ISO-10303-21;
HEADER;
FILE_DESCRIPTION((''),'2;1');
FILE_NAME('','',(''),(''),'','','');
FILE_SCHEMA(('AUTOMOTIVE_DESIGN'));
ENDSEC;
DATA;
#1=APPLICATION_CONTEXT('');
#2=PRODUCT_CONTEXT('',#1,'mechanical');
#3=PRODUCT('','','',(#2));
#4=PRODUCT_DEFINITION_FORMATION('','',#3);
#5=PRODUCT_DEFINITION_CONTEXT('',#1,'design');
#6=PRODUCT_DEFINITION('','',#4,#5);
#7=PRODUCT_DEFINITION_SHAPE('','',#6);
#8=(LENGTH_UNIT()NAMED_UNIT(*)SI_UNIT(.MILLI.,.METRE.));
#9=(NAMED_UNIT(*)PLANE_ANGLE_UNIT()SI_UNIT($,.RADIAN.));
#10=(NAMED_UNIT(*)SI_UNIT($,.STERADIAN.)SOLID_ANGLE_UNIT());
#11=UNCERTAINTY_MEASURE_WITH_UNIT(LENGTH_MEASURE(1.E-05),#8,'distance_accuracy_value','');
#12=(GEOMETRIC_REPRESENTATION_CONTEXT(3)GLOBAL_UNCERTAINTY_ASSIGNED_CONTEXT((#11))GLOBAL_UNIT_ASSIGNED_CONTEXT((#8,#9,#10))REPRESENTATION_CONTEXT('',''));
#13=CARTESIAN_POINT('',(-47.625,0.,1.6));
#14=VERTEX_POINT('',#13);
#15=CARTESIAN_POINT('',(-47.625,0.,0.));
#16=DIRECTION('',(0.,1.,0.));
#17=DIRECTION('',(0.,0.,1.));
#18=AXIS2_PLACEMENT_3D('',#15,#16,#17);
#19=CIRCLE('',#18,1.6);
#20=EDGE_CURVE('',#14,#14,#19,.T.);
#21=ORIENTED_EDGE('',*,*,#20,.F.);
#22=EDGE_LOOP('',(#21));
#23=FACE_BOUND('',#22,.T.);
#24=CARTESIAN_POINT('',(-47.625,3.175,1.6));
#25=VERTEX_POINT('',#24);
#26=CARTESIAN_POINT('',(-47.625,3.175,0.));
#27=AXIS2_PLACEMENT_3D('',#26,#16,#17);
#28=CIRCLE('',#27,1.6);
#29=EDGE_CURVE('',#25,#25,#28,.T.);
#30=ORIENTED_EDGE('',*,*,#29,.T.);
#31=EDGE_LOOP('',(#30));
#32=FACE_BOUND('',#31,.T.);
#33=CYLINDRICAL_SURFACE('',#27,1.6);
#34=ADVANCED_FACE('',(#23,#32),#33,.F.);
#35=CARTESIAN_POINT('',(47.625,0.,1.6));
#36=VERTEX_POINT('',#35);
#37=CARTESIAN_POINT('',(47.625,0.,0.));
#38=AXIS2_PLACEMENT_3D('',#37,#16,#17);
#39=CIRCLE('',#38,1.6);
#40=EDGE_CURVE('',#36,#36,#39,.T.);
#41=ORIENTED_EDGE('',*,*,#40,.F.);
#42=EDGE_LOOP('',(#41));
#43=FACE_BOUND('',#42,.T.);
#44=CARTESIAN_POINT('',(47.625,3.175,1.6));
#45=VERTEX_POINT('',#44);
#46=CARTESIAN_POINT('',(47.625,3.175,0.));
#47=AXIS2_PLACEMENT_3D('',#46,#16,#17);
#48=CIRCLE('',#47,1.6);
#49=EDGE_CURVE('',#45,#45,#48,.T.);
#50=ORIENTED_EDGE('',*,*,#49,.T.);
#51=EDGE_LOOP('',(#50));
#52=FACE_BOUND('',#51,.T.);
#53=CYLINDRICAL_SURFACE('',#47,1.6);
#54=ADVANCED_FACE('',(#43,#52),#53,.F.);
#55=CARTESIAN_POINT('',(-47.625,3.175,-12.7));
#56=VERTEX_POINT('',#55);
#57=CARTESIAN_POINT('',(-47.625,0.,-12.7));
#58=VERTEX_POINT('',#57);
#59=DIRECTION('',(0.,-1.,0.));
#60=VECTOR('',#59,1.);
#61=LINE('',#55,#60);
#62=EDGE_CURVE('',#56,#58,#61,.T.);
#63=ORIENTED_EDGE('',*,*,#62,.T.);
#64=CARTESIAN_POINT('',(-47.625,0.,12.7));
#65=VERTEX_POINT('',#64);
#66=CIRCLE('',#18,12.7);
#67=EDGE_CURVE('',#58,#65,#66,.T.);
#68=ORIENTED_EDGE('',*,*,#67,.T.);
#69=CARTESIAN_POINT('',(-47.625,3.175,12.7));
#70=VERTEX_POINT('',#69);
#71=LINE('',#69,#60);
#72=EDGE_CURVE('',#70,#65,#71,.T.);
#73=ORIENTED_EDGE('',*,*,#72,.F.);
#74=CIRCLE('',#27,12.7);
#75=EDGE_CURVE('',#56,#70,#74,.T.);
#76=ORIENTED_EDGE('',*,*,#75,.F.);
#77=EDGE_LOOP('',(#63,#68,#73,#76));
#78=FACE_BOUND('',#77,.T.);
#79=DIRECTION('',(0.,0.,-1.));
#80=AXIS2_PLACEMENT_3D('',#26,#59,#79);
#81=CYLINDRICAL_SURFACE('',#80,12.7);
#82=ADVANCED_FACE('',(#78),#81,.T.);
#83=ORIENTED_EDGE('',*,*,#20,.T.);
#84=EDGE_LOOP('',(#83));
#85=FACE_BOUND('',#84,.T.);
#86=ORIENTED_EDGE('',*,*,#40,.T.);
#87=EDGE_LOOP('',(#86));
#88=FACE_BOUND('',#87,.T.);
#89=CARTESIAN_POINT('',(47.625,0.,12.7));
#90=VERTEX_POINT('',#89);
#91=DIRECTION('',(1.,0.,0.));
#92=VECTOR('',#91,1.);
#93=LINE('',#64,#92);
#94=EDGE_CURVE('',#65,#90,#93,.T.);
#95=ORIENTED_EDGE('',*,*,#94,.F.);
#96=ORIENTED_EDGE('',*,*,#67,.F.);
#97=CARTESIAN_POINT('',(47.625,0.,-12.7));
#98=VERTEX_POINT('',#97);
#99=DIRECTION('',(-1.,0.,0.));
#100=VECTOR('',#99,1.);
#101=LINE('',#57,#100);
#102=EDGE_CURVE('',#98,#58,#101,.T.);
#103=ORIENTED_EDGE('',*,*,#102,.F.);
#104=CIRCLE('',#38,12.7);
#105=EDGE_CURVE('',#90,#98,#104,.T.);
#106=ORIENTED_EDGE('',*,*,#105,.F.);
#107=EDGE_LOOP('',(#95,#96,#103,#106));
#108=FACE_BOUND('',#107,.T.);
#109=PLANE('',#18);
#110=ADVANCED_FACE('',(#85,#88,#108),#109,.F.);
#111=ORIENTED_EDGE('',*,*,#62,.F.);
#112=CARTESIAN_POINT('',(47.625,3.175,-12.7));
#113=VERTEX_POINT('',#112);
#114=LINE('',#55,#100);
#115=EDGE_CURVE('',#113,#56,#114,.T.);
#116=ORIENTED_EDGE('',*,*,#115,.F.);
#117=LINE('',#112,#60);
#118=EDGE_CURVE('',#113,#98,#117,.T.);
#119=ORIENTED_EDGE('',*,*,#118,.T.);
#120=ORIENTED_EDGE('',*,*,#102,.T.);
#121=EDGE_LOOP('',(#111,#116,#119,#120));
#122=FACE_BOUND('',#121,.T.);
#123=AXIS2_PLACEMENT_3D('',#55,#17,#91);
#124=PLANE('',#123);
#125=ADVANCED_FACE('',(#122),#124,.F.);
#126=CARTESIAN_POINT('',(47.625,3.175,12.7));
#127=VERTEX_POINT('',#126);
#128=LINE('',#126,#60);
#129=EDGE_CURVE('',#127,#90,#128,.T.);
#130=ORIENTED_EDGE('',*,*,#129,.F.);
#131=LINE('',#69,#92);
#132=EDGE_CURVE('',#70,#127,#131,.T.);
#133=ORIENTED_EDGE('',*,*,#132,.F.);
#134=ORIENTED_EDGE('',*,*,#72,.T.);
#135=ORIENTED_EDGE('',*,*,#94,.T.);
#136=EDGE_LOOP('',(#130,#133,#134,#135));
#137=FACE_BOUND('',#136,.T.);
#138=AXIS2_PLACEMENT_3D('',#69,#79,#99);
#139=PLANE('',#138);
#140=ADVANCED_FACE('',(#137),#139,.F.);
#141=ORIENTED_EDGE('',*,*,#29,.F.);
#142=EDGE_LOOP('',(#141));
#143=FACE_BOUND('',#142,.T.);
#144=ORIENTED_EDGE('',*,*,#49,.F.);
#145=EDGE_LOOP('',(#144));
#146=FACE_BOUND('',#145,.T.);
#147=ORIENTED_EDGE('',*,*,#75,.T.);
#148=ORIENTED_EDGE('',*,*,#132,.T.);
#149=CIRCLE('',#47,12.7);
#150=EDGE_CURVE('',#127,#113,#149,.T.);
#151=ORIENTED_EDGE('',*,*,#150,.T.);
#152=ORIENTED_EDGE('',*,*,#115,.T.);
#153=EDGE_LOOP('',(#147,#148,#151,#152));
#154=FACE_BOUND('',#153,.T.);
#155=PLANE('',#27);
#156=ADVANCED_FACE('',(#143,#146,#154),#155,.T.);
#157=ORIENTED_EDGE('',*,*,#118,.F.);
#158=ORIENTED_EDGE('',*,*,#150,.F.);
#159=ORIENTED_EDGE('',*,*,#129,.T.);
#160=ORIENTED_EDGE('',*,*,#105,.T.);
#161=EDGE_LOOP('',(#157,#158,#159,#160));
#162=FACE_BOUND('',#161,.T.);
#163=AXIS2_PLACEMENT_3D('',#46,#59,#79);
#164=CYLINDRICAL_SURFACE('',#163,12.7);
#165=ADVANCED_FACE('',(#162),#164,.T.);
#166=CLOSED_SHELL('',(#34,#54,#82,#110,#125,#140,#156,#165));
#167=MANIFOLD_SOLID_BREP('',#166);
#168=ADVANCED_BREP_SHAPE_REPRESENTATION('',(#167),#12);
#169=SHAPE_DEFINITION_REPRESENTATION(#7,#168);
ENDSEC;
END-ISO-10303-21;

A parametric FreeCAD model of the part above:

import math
import FreeCAD as App
import Part
import Sketcher
Q = App.Units.Quantity

doc = App.newDocument("Part")
body = doc.addObject("PartDesign::Body", "Body")

# Sketch on XZ plane
sketch1 = body.newObject("Sketcher::SketchObject", "Sketch")
sketch1.AttachmentSupport = (doc.getObject("XZ_Plane"), [""])
sketch1.MapMode = "FlatFace"
sketch1.addGeometry(Part.LineSegment(App.Vector(48, -13, 0), App.Vector(-48, -13, 0)), False)
sketch1.addGeometry(Part.ArcOfCircle(Part.Circle(App.Vector(-48, 0, 0), App.Vector(0, 0, 1), 13), math.radians(90), math.radians(270)), False)
sketch1.addGeometry(Part.LineSegment(App.Vector(-48, 13, 0), App.Vector(48, 13, 0)), False)
sketch1.addGeometry(Part.ArcOfCircle(Part.Circle(App.Vector(48, 0, 0), App.Vector(0, 0, 1), 13), math.radians(-90), math.radians(90)), False)
sketch1.addConstraint(Sketcher.Constraint("Tangent", 0, 2, 1, 2))
sketch1.addConstraint(Sketcher.Constraint("Tangent", 1, 1, 2, 1))
sketch1.addConstraint(Sketcher.Constraint("Tangent", 2, 2, 3, 2))
sketch1.addConstraint(Sketcher.Constraint("Tangent", 3, 1, 0, 1))
sketch1.addConstraint(Sketcher.Constraint("Horizontal", 0))
sketch1.addConstraint(Sketcher.Constraint("Horizontal", 2))
sketch1.addConstraint(Sketcher.Constraint("Symmetric", 1, 3, 3, 3, -1, 1))
sketch1.addConstraint(Sketcher.Constraint("Radius", 1, Q("0.5 in")))
sketch1.addConstraint(Sketcher.Constraint("DistanceX", 0, 2, 0, 1, Q("3.75 in")))
pad1 = body.newObject("PartDesign::Pad", "Pad")
pad1.Profile = sketch1
pad1.Length = Q("0.125 in")
pad1.Reversed = True

# Sketch on XZ plane
sketch2 = body.newObject("Sketcher::SketchObject", "Sketch001")
sketch2.AttachmentSupport = (doc.getObject("XZ_Plane"), [""])
sketch2.MapMode = "FlatFace"
sketch2.AttachmentOffset = App.Placement(App.Vector(0, 0, -0.125 * 25.4), App.Rotation())
sketch2.addGeometry(Part.Circle(App.Vector(-47.6, 0, 0), App.Vector(0, 0, 1), 1.6), False)
sketch2.addGeometry(Part.Circle(App.Vector(47.6, 0, 0), App.Vector(0, 0, 1), 1.6), False)
sketch2.addConstraint(Sketcher.Constraint("Equal", 0, 1))
sketch2.addConstraint(Sketcher.Constraint("Symmetric", 0, 3, 1, 3, -1, 1))
sketch2.addConstraint(Sketcher.Constraint("PointOnObject", 0, 3, -1))
sketch2.addConstraint(Sketcher.Constraint("Diameter", 0, Q("3.2 mm")))
sketch2.addConstraint(Sketcher.Constraint("DistanceX", 0, 3, 1, 3, Q("3.75 in")))
doc.recompute()
hole = body.newObject("PartDesign::Hole", "Hole")
hole.Profile = sketch2
hole.ThreadType = "None"
hole.Diameter = 3.2
hole.DepthType = "ThroughAll"
hole.Reversed = True

doc.recompute()
